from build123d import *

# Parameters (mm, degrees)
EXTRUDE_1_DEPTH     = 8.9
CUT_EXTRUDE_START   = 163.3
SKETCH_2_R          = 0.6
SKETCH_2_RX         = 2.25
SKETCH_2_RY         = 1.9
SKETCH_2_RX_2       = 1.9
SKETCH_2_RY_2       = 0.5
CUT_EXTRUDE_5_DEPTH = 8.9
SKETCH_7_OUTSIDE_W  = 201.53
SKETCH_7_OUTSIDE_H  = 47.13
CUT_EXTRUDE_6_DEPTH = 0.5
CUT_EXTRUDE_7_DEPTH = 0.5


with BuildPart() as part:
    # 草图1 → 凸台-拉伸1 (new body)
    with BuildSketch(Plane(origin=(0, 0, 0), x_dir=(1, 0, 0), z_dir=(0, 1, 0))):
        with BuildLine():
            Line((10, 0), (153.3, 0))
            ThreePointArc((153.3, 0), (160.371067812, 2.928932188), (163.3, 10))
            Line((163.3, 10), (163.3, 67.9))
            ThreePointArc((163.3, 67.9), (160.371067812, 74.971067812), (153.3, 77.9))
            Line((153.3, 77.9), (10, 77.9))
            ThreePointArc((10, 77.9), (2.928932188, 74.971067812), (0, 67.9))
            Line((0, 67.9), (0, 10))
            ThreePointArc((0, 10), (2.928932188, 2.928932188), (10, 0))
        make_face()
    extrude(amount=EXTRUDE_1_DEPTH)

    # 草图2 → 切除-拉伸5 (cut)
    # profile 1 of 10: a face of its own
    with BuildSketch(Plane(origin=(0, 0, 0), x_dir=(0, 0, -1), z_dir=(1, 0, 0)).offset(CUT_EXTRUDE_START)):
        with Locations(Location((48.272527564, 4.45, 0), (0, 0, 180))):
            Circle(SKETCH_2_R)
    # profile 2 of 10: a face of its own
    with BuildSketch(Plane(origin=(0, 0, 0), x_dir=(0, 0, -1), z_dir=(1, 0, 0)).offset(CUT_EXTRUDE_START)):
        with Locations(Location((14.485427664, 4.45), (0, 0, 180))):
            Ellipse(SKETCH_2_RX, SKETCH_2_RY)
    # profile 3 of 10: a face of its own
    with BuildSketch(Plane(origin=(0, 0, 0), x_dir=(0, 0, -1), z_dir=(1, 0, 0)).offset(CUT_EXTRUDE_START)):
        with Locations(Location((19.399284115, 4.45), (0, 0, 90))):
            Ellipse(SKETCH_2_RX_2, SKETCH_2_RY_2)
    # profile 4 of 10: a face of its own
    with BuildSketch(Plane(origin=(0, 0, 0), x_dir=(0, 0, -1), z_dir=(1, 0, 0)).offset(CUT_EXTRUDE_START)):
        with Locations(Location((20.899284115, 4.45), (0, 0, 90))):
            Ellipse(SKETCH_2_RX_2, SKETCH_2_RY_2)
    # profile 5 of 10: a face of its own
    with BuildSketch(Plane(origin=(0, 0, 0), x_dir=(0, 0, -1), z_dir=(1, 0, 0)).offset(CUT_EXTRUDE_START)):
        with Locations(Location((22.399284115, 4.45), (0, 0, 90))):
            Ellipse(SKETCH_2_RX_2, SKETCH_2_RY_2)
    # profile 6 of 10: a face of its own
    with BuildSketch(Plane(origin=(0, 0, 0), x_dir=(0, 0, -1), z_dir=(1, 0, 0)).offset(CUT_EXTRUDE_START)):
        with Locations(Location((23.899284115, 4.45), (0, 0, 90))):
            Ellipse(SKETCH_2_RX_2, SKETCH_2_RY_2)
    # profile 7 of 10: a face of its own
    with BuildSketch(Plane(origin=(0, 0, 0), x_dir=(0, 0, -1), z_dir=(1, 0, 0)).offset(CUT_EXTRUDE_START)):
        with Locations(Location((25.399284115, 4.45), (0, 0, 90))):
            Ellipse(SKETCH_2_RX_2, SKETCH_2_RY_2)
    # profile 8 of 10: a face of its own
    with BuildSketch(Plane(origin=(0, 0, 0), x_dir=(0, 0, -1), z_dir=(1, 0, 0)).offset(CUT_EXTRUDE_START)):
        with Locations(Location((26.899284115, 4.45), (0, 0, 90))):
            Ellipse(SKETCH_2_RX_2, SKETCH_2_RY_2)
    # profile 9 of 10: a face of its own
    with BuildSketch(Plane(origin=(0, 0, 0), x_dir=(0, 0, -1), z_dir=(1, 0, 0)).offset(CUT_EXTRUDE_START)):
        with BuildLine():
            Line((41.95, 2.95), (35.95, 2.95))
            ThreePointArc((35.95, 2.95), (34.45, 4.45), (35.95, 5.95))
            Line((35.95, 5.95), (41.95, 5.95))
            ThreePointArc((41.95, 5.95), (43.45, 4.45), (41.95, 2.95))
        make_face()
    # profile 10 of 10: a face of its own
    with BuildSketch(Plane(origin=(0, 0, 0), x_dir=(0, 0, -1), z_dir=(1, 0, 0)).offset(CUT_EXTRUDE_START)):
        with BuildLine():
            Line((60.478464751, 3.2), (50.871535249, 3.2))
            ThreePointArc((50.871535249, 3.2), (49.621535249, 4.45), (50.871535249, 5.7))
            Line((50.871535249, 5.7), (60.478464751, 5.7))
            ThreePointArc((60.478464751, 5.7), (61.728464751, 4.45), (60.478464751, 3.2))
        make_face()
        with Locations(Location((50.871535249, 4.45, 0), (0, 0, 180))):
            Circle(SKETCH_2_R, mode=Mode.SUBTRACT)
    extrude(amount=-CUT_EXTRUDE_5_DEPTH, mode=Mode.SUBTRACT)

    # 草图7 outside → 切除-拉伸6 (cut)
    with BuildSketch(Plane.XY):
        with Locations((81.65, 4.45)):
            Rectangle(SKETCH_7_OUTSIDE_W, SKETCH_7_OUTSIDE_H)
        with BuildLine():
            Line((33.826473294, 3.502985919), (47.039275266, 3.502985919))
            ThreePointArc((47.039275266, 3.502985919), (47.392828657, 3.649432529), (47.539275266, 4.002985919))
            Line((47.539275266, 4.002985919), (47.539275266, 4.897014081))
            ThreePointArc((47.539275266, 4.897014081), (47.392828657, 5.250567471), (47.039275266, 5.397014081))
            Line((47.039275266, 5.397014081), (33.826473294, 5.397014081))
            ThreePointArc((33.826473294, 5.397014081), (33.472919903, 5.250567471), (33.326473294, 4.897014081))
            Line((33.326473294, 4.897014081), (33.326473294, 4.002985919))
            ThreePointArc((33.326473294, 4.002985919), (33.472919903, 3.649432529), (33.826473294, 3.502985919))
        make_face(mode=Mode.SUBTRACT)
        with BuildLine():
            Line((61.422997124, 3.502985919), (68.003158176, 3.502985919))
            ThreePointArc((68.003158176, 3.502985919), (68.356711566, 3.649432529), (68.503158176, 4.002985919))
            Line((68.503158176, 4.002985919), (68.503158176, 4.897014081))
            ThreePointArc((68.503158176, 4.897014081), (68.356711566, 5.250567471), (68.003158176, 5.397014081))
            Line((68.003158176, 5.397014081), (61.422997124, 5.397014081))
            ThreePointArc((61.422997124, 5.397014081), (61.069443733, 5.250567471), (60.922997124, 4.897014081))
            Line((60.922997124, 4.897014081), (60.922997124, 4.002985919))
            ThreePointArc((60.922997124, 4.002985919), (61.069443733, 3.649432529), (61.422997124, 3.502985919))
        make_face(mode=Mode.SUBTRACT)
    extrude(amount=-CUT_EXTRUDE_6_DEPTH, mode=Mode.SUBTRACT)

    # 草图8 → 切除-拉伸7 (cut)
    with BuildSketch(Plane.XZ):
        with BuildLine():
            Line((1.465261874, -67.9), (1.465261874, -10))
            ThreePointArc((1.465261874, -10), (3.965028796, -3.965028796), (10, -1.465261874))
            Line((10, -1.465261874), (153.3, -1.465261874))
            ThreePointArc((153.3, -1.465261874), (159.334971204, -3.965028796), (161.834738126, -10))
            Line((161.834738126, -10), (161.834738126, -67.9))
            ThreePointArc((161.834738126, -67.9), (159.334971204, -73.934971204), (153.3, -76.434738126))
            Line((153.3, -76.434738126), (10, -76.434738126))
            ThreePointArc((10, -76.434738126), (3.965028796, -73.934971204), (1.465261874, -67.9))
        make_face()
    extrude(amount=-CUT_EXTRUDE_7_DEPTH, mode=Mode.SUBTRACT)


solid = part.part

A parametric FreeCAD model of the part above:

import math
import FreeCAD as App
import Part
import Sketcher
from FreeCAD import Vector
Q = App.Units.Quantity


def add_polygon(sketch, points):
    """Adds a closed chain of lines whose ends are joined by coincident constraints."""
    first, n = sketch.GeometryCount, len(points)
    for a, b in zip(points, points[1:] + points[:1]):
        sketch.addGeometry(Part.LineSegment(App.Vector(*a, 0), App.Vector(*b, 0)), False)
    for i in range(n):
        sketch.addConstraint(Sketcher.Constraint("Coincident", first + i, 2, first + (i + 1) % n, 1))

doc = App.newDocument("Part")
body = doc.addObject("PartDesign::Body", "Body")

# Sketch on XZ plane
sketch1 = body.newObject("Sketcher::SketchObject", "Sketch")
sketch1.AttachmentSupport = (doc.getObject("XZ_Plane"), [""])
sketch1.MapMode = "FlatFace"
sketch1.addGeometry(Part.LineSegment(Vector(10, 0, 0), Vector(153, 0, 0)), False)
sketch1.addGeometry(Part.ArcOfCircle(Part.Circle(Vector(153, -10, 0), Vector(0, 0, 1), 10), math.radians(0), math.radians(90)), False)
sketch1.addGeometry(Part.LineSegment(Vector(163, -10, 0), Vector(163, -68, 0)), False)
sketch1.addGeometry(Part.ArcOfCircle(Part.Circle(Vector(153, -68, 0), Vector(0, 0, 1), 10), math.radians(-90), math.radians(0)), False)
sketch1.addGeometry(Part.LineSegment(Vector(153, -78, 0), Vector(10, -78, 0)), False)
sketch1.addGeometry(Part.ArcOfCircle(Part.Circle(Vector(10, -68, 0), Vector(0, 0, 1), 10), math.radians(180), math.radians(270)), False)
sketch1.addGeometry(Part.LineSegment(Vector(0, -68, 0), Vector(0, -10, 0)), False)
sketch1.addGeometry(Part.ArcOfCircle(Part.Circle(Vector(10, -10, 0), Vector(0, 0, 1), 10), math.radians(90), math.radians(180)), False)
sketch1.addConstraint(Sketcher.Constraint("Tangent", 0, 2, 1, 2))
sketch1.addConstraint(Sketcher.Constraint("Tangent", 1, 1, 2, 1))
sketch1.addConstraint(Sketcher.Constraint("Tangent", 2, 2, 3, 2))
sketch1.addConstraint(Sketcher.Constraint("Tangent", 3, 1, 4, 1))
sketch1.addConstraint(Sketcher.Constraint("Tangent", 4, 2, 5, 2))
sketch1.addConstraint(Sketcher.Constraint("Tangent", 5, 1, 6, 1))
sketch1.addConstraint(Sketcher.Constraint("Tangent", 6, 2, 7, 2))
sketch1.addConstraint(Sketcher.Constraint("Tangent", 7, 1, 0, 1))
sketch1.addConstraint(Sketcher.Constraint("Horizontal", 0))
sketch1.addConstraint(Sketcher.Constraint("Vertical", 2))
sketch1.addConstraint(Sketcher.Constraint("Horizontal", 4))
sketch1.addConstraint(Sketcher.Constraint("Vertical", 6))
sketch1.addConstraint(Sketcher.Constraint("Equal", 1, 3))
sketch1.addConstraint(Sketcher.Constraint("Equal", 3, 5))
sketch1.addConstraint(Sketcher.Constraint("Equal", 5, 7))
sketch1.addConstraint(Sketcher.Constraint("PointOnObject", 0, 2, -1))
sketch1.addConstraint(Sketcher.Constraint("PointOnObject", 5, 1, -2))
sketch1.addConstraint(Sketcher.Constraint("Radius", 1, Q("10 mm")))
sketch1.addConstraint(Sketcher.Constraint("DistanceX", 0, 1, 0, 2, Q("143.3 mm")))
sketch1.addConstraint(Sketcher.Constraint("DistanceY", 2, 2, 2, 1, Q("57.9 mm")))
pad1 = body.newObject("PartDesign::Pad", "Pad")
pad1.Profile = sketch1
pad1.Length = 8.9
pad1.Reversed = True

# Sketch on YZ plane
sketch2 = body.newObject("Sketcher::SketchObject", "Sketch001")
sketch2.AttachmentSupport = (doc.getObject("YZ_Plane"), [""])
sketch2.MapMode = "FlatFace"
sketch2.AttachmentOffset = App.Placement(Vector(0, 0, 163.3), App.Rotation())
sketch2.addGeometry(Part.Circle(Vector(4.45, -48.272528, 0), Vector(0, 0, 1), 0.6), False)
sketch2.addGeometry(Part.Ellipse(Vector(4.45, -12.235428, 0), Vector(2.55, -14.485428, 0), Vector(4.45, -14.485428, 0)), False)
sketch2.addGeometry(Part.Ellipse(Vector(6.35, -19.399284, 0), Vector(4.45, -18.899284, 0), Vector(4.45, -19.399284, 0)), False)
sketch2.addGeometry(Part.Ellipse(Vector(6.35, -20.899284, 0), Vector(4.45, -20.399284, 0), Vector(4.45, -20.899284, 0)), False)
sketch2.addGeometry(Part.Ellipse(Vector(6.35, -22.399284, 0), Vector(4.45, -21.899284, 0), Vector(4.45, -22.399284, 0)), False)
sketch2.addGeometry(Part.Ellipse(Vector(6.35, -23.899284, 0), Vector(4.45, -23.399284, 0), Vector(4.45, -23.899284, 0)), False)
sketch2.addGeometry(Part.Ellipse(Vector(6.35, -25.399284, 0), Vector(4.45, -24.899284, 0), Vector(4.45, -25.399284, 0)), False)
sketch2.addGeometry(Part.Ellipse(Vector(6.35, -26.899284, 0), Vector(4.45, -26.399284, 0), Vector(4.45, -26.899284, 0)), False)
sketch2.addGeometry(Part.LineSegment(Vector(2.95, -35.95, 0), Vector(2.95, -41.95, 0)), False)
sketch2.addGeometry(Part.ArcOfCircle(Part.Circle(Vector(4.45, -41.95, 0), Vector(0, 0, 1), 1.5), math.radians(180), math.radians(360)), False)
sketch2.addGeometry(Part.LineSegment(Vector(5.95, -41.95, 0), Vector(5.95, -35.95, 0)), False)
sketch2.addGeometry(Part.ArcOfCircle(Part.Circle(Vector(4.45, -35.95, 0), Vector(0, 0, 1), 1.5), math.radians(0), math.radians(180)), False)
sketch2.addGeometry(Part.LineSegment(Vector(3.2, -50.871535, 0), Vector(3.2, -60.478465, 0)), False)
sketch2.addGeometry(Part.ArcOfCircle(Part.Circle(Vector(4.45, -60.478465, 0), Vector(0, 0, 1), 1.25), math.radians(180), math.radians(360)), False)
sketch2.addGeometry(Part.LineSegment(Vector(5.7, -60.478465, 0), Vector(5.7, -50.871535, 0)), False)
sketch2.addGeometry(Part.ArcOfCircle(Part.Circle(Vector(4.45, -50.871535, 0), Vector(0, 0, 1), 1.25), math.radians(0), math.radians(180)), False)
sketch2.addGeometry(Part.Circle(Vector(4.45, -50.871535, 0), Vector(0, 0, 1), 0.6), False)
sketch2.addConstraint(Sketcher.Constraint("Block", 1))
sketch2.addConstraint(Sketcher.Constraint("Block", 2))
sketch2.addConstraint(Sketcher.Constraint("Block", 3))
sketch2.addConstraint(Sketcher.Constraint("Block", 4))
sketch2.addConstraint(Sketcher.Constraint("Block", 5))
sketch2.addConstraint(Sketcher.Constraint("Block", 6))
sketch2.addConstraint(Sketcher.Constraint("Block", 7))
sketch2.addConstraint(Sketcher.Constraint("Tangent", 8, 2, 9, 1))
sketch2.addConstraint(Sketcher.Constraint("Tangent", 9, 2, 10, 1))
sketch2.addConstraint(Sketcher.Constraint("Tangent", 10, 2, 11, 1))
sketch2.addConstraint(Sketcher.Constraint("Tangent", 11, 2, 8, 1))
sketch2.addConstraint(Sketcher.Constraint("Tangent", 12, 2, 13, 1))
sketch2.addConstraint(Sketcher.Constraint("Tangent", 13, 2, 14, 1))
sketch2.addConstraint(Sketcher.Constraint("Tangent", 14, 2, 15, 1))
sketch2.addConstraint(Sketcher.Constraint("Tangent", 15, 2, 12, 1))
sketch2.addConstraint(Sketcher.Constraint("Vertical", 8))
sketch2.addConstraint(Sketcher.Constraint("Vertical", 10))
sketch2.addConstraint(Sketcher.Constraint("Vertical", 12))
sketch2.addConstraint(Sketcher.Constraint("Vertical", 14))
sketch2.addConstraint(Sketcher.Constraint("Coincident", 16, 3, 15, 3))
sketch2.addConstraint(Sketcher.Constraint("Equal", 0, 16))
sketch2.addConstraint(Sketcher.Constraint("Vertical", 0, 3, 9, 3))
sketch2.addConstraint(Sketcher.Constraint("Vertical", 11, 3, 13, 3))
sketch2.addConstraint(Sketcher.Constraint("Diameter", 0, Q("1.2 mm")))
sketch2.addConstraint(Sketcher.Constraint("Radius", 9, Q("1.5 mm")))
sketch2.addConstraint(Sketcher.Constraint("DistanceY", 8, 2, 8, 1, Q("6 mm")))
sketch2.addConstraint(Sketcher.Constraint("Radius", 13, Q("1.25 mm")))
sketch2.addConstraint(Sketcher.Constraint("DistanceX", -1, 1, 12, 2, Q("3.2 mm")))
sketch2.addConstraint(Sketcher.Constraint("DistanceY", 9, 3, -1, 1, Q("41.95 mm")))
sketch2.addConstraint(Sketcher.Constraint("DistanceY", 12, 2, 12, 1, Q("9.60693 mm")))
sketch2.addConstraint(Sketcher.Constraint("DistanceY", 0, 3, -1, 1, Q("48.272528 mm")))
sketch2.addConstraint(Sketcher.Constraint("DistanceY", 13, 3, -1, 1, Q("60.478465 mm")))
pocket1 = body.newObject("PartDesign::Pocket", "Pocket")
pocket1.Profile = sketch2
pocket1.Length = 8.9

# Sketch on XY plane
sketch3 = body.newObject("Sketcher::SketchObject", "Sketch002")
sketch3.AttachmentSupport = (doc.getObject("XY_Plane"), [""])
sketch3.MapMode = "FlatFace"
add_polygon(sketch3, [(-19.1, 28), (-19.1, -19.1), (182.4, -19.1), (182.4, 28)])  # lines 0-3
sketch3.addGeometry(Part.LineSegment(Vector(47, 3.5, 0), Vector(33.8, 3.5, 0)), False)  # 4
sketch3.addGeometry(Part.ArcOfCircle(Part.Circle(Vector(33.8, 4, 0), Vector(0, 0, 1), 0.5), math.radians(180), math.radians(270)), False)  # 5
sketch3.addGeometry(Part.LineSegment(Vector(33.3, 4, 0), Vector(33.3, 4.9, 0)), False)  # 6
sketch3.addGeometry(Part.ArcOfCircle(Part.Circle(Vector(33.8, 4.9, 0), Vector(0, 0, 1), 0.5), math.radians(90), math.radians(180)), False)  # 7
sketch3.addGeometry(Part.LineSegment(Vector(33.8, 5.4, 0), Vector(47, 5.4, 0)), False)  # 8
sketch3.addGeometry(Part.ArcOfCircle(Part.Circle(Vector(47, 4.9, 0), Vector(0, 0, 1), 0.5), math.radians(0), math.radians(90)), False)  # 9
sketch3.addGeometry(Part.LineSegment(Vector(47.5, 4.9, 0), Vector(47.5, 4, 0)), False)  # 10
sketch3.addGeometry(Part.ArcOfCircle(Part.Circle(Vector(47, 4, 0), Vector(0, 0, 1), 0.5), math.radians(-90), math.radians(0)), False)  # 11
sketch3.addGeometry(Part.LineSegment(Vector(68, 3.5, 0), Vector(61.4, 3.5, 0)), False)  # 12
sketch3.addGeometry(Part.ArcOfCircle(Part.Circle(Vector(61.4, 4, 0), Vector(0, 0, 1), 0.5), math.radians(180), math.radians(270)), False)  # 13
sketch3.addGeometry(Part.LineSegment(Vector(60.9, 4, 0), Vector(60.9, 4.9, 0)), False)  # 14
sketch3.addGeometry(Part.ArcOfCircle(Part.Circle(Vector(61.4, 4.9, 0), Vector(0, 0, 1), 0.5), math.radians(90), math.radians(180)), False)  # 15
sketch3.addGeometry(Part.LineSegment(Vector(61.4, 5.4, 0), Vector(68, 5.4, 0)), False)  # 16
sketch3.addGeometry(Part.ArcOfCircle(Part.Circle(Vector(68, 4.9, 0), Vector(0, 0, 1), 0.5), math.radians(0), math.radians(90)), False)  # 17
sketch3.addGeometry(Part.LineSegment(Vector(68.5, 4.9, 0), Vector(68.5, 4, 0)), False)  # 18
sketch3.addGeometry(Part.ArcOfCircle(Part.Circle(Vector(68, 4, 0), Vector(0, 0, 1), 0.5), math.radians(-90), math.radians(0)), False)  # 19
sketch3.addConstraint(Sketcher.Constraint("Tangent", 4, 2, 5, 2))
sketch3.addConstraint(Sketcher.Constraint("Tangent", 5, 1, 6, 1))
sketch3.addConstraint(Sketcher.Constraint("Tangent", 6, 2, 7, 2))
sketch3.addConstraint(Sketcher.Constraint("Tangent", 7, 1, 8, 1))
sketch3.addConstraint(Sketcher.Constraint("Tangent", 8, 2, 9, 2))
sketch3.addConstraint(Sketcher.Constraint("Tangent", 9, 1, 10, 1))
sketch3.addConstraint(Sketcher.Constraint("Tangent", 10, 2, 11, 2))
sketch3.addConstraint(Sketcher.Constraint("Tangent", 11, 1, 4, 1))
sketch3.addConstraint(Sketcher.Constraint("Tangent", 12, 2, 13, 2))
sketch3.addConstraint(Sketcher.Constraint("Tangent", 13, 1, 14, 1))
sketch3.addConstraint(Sketcher.Constraint("Tangent", 14, 2, 15, 2))
sketch3.addConstraint(Sketcher.Constraint("Tangent", 15, 1, 16, 1))
sketch3.addConstraint(Sketcher.Constraint("Tangent", 16, 2, 17, 2))
sketch3.addConstraint(Sketcher.Constraint("Tangent", 17, 1, 18, 1))
sketch3.addConstraint(Sketcher.Constraint("Tangent", 18, 2, 19, 2))
sketch3.addConstraint(Sketcher.Constraint("Tangent", 19, 1, 12, 1))
sketch3.addConstraint(Sketcher.Constraint("Vertical", 0))
sketch3.addConstraint(Sketcher.Constraint("Horizontal", 1))
sketch3.addConstraint(Sketcher.Constraint("Vertical", 2))
sketch3.addConstraint(Sketcher.Constraint("Horizontal", 3))
sketch3.addConstraint(Sketcher.Constraint("Horizontal", 4))
sketch3.addConstraint(Sketcher.Constraint("Vertical", 6))
sketch3.addConstraint(Sketcher.Constraint("Horizontal", 8))
sketch3.addConstraint(Sketcher.Constraint("Vertical", 10))
sketch3.addConstraint(Sketcher.Constraint("Horizontal", 12))
sketch3.addConstraint(Sketcher.Constraint("Vertical", 14))
sketch3.addConstraint(Sketcher.Constraint("Horizontal", 16))
sketch3.addConstraint(Sketcher.Constraint("Vertical", 18))
sketch3.addConstraint(Sketcher.Constraint("Equal", 5, 7))
sketch3.addConstraint(Sketcher.Constraint("Equal", 7, 9))
sketch3.addConstraint(Sketcher.Constraint("Equal", 9, 11))
sketch3.addConstraint(Sketcher.Constraint("Equal", 11, 13))
sketch3.addConstraint(Sketcher.Constraint("Equal", 13, 15))
sketch3.addConstraint(Sketcher.Constraint("Equal", 15, 17))
sketch3.addConstraint(Sketcher.Constraint("Equal", 17, 19))
sketch3.addConstraint(Sketcher.Constraint("Horizontal", 11, 3, 13, 3))
sketch3.addConstraint(Sketcher.Constraint("Horizontal", 9, 3, 15, 3))
sketch3.addConstraint(Sketcher.Constraint("Radius", 5, Q("0.5 mm")))
sketch3.addConstraint(Sketcher.Constraint("DistanceX", 1, 1, 1, 2, Q("201.53 mm")))
sketch3.addConstraint(Sketcher.Constraint("DistanceY", 0, 2, 0, 1, Q("47.13 mm")))
sketch3.addConstraint(Sketcher.Constraint("DistanceX", 4, 2, 4, 1, Q("13.212802 mm")))
sketch3.addConstraint(Sketcher.Constraint("DistanceX", 0, 2, -1, 1, Q("19.115 mm")))
sketch3.addConstraint(Sketcher.Constraint("DistanceY", 0, 2, -1, 1, Q("19.115 mm")))
sketch3.addConstraint(Sketcher.Constraint("DistanceX", 12, 2, 12, 1, Q("6.580161 mm")))
sketch3.addConstraint(Sketcher.Constraint("DistanceY", 6, 1, 6, 2, Q("0.894028 mm")))
sketch3.addConstraint(Sketcher.Constraint("DistanceX", -1, 1, 17, 3, Q("68.003158 mm")))
sketch3.addConstraint(Sketcher.Constraint("DistanceX", 11, 3, 13, 3, Q("14.383722 mm")))
sketch3.addConstraint(Sketcher.Constraint("DistanceY", -1, 1, 5, 3, Q("4.002986 mm")))
pocket2 = body.newObject("PartDesign::Pocket", "Pocket001")
pocket2.Profile = sketch3
pocket2.Length = 0.5

# Sketch on XZ plane
sketch4 = body.newObject("Sketcher::SketchObject", "Sketch003")
sketch4.AttachmentSupport = (doc.getObject("XZ_Plane"), [""])
sketch4.MapMode = "FlatFace"
sketch4.addGeometry(Part.LineSegment(Vector(1, -10, 0), Vector(1, -68, 0)), False)
sketch4.addGeometry(Part.ArcOfCircle(Part.Circle(Vector(10, -68, 0), Vector(0, 0, 1), 9), math.radians(-180), math.radians(-90)), False)
sketch4.addGeometry(Part.LineSegment(Vector(10, -76, 0), Vector(153, -76, 0)), False)
sketch4.addGeometry(Part.ArcOfCircle(Part.Circle(Vector(153, -68, 0), Vector(0, 0, 1), 9), math.radians(-90), math.radians(0)), False)
sketch4.addGeometry(Part.LineSegment(Vector(162, -68, 0), Vector(162, -10, 0)), False)
sketch4.addGeometry(Part.ArcOfCircle(Part.Circle(Vector(153, -10, 0), Vector(0, 0, 1), 9), math.radians(0), math.radians(90)), False)
sketch4.addGeometry(Part.LineSegment(Vector(153, -1, 0), Vector(10, -1, 0)), False)
sketch4.addGeometry(Part.ArcOfCircle(Part.Circle(Vector(10, -10, 0), Vector(0, 0, 1), 9), math.radians(90), math.radians(180)), False)
sketch4.addConstraint(Sketcher.Constraint("Tangent", 0, 2, 1, 1))
sketch4.addConstraint(Sketcher.Constraint("Tangent", 1, 2, 2, 1))
sketch4.addConstraint(Sketcher.Constraint("Tangent", 2, 2, 3, 1))
sketch4.addConstraint(Sketcher.Constraint("Tangent", 3, 2, 4, 1))
sketch4.addConstraint(Sketcher.Constraint("Tangent", 4, 2, 5, 1))
sketch4.addConstraint(Sketcher.Constraint("Tangent", 5, 2, 6, 1))
sketch4.addConstraint(Sketcher.Constraint("Tangent", 6, 2, 7, 1))
sketch4.addConstraint(Sketcher.Constraint("Tangent", 7, 2, 0, 1))
sketch4.addConstraint(Sketcher.Constraint("Vertical", 0))
sketch4.addConstraint(Sketcher.Constraint("Horizontal", 2))
sketch4.addConstraint(Sketcher.Constraint("Vertical", 4))
sketch4.addConstraint(Sketcher.Constraint("Horizontal", 6))
sketch4.addConstraint(Sketcher.Constraint("Equal", 1, 3))
sketch4.addConstraint(Sketcher.Constraint("Equal", 3, 5))
sketch4.addConstraint(Sketcher.Constraint("Equal", 5, 7))
sketch4.addConstraint(Sketcher.Constraint("DistanceX", 2, 1, 2, 2, Q("143.3 mm")))
sketch4.addConstraint(Sketcher.Constraint("DistanceY", 0, 2, 0, 1, Q("57.9 mm")))
sketch4.addConstraint(Sketcher.Constraint("DistanceX", -1, 1, 1, 3, Q("10 mm")))
sketch4.addConstraint(Sketcher.Constraint("DistanceY", 5, 3, -1, 1, Q("10 mm")))
sketch4.addConstraint(Sketcher.Constraint("Radius", 1, Q("8.534738 mm")))
pocket3 = body.newObject("PartDesign::Pocket", "Pocket002")
pocket3.Profile = sketch4
pocket3.Length = 0.5

doc.recompute()
